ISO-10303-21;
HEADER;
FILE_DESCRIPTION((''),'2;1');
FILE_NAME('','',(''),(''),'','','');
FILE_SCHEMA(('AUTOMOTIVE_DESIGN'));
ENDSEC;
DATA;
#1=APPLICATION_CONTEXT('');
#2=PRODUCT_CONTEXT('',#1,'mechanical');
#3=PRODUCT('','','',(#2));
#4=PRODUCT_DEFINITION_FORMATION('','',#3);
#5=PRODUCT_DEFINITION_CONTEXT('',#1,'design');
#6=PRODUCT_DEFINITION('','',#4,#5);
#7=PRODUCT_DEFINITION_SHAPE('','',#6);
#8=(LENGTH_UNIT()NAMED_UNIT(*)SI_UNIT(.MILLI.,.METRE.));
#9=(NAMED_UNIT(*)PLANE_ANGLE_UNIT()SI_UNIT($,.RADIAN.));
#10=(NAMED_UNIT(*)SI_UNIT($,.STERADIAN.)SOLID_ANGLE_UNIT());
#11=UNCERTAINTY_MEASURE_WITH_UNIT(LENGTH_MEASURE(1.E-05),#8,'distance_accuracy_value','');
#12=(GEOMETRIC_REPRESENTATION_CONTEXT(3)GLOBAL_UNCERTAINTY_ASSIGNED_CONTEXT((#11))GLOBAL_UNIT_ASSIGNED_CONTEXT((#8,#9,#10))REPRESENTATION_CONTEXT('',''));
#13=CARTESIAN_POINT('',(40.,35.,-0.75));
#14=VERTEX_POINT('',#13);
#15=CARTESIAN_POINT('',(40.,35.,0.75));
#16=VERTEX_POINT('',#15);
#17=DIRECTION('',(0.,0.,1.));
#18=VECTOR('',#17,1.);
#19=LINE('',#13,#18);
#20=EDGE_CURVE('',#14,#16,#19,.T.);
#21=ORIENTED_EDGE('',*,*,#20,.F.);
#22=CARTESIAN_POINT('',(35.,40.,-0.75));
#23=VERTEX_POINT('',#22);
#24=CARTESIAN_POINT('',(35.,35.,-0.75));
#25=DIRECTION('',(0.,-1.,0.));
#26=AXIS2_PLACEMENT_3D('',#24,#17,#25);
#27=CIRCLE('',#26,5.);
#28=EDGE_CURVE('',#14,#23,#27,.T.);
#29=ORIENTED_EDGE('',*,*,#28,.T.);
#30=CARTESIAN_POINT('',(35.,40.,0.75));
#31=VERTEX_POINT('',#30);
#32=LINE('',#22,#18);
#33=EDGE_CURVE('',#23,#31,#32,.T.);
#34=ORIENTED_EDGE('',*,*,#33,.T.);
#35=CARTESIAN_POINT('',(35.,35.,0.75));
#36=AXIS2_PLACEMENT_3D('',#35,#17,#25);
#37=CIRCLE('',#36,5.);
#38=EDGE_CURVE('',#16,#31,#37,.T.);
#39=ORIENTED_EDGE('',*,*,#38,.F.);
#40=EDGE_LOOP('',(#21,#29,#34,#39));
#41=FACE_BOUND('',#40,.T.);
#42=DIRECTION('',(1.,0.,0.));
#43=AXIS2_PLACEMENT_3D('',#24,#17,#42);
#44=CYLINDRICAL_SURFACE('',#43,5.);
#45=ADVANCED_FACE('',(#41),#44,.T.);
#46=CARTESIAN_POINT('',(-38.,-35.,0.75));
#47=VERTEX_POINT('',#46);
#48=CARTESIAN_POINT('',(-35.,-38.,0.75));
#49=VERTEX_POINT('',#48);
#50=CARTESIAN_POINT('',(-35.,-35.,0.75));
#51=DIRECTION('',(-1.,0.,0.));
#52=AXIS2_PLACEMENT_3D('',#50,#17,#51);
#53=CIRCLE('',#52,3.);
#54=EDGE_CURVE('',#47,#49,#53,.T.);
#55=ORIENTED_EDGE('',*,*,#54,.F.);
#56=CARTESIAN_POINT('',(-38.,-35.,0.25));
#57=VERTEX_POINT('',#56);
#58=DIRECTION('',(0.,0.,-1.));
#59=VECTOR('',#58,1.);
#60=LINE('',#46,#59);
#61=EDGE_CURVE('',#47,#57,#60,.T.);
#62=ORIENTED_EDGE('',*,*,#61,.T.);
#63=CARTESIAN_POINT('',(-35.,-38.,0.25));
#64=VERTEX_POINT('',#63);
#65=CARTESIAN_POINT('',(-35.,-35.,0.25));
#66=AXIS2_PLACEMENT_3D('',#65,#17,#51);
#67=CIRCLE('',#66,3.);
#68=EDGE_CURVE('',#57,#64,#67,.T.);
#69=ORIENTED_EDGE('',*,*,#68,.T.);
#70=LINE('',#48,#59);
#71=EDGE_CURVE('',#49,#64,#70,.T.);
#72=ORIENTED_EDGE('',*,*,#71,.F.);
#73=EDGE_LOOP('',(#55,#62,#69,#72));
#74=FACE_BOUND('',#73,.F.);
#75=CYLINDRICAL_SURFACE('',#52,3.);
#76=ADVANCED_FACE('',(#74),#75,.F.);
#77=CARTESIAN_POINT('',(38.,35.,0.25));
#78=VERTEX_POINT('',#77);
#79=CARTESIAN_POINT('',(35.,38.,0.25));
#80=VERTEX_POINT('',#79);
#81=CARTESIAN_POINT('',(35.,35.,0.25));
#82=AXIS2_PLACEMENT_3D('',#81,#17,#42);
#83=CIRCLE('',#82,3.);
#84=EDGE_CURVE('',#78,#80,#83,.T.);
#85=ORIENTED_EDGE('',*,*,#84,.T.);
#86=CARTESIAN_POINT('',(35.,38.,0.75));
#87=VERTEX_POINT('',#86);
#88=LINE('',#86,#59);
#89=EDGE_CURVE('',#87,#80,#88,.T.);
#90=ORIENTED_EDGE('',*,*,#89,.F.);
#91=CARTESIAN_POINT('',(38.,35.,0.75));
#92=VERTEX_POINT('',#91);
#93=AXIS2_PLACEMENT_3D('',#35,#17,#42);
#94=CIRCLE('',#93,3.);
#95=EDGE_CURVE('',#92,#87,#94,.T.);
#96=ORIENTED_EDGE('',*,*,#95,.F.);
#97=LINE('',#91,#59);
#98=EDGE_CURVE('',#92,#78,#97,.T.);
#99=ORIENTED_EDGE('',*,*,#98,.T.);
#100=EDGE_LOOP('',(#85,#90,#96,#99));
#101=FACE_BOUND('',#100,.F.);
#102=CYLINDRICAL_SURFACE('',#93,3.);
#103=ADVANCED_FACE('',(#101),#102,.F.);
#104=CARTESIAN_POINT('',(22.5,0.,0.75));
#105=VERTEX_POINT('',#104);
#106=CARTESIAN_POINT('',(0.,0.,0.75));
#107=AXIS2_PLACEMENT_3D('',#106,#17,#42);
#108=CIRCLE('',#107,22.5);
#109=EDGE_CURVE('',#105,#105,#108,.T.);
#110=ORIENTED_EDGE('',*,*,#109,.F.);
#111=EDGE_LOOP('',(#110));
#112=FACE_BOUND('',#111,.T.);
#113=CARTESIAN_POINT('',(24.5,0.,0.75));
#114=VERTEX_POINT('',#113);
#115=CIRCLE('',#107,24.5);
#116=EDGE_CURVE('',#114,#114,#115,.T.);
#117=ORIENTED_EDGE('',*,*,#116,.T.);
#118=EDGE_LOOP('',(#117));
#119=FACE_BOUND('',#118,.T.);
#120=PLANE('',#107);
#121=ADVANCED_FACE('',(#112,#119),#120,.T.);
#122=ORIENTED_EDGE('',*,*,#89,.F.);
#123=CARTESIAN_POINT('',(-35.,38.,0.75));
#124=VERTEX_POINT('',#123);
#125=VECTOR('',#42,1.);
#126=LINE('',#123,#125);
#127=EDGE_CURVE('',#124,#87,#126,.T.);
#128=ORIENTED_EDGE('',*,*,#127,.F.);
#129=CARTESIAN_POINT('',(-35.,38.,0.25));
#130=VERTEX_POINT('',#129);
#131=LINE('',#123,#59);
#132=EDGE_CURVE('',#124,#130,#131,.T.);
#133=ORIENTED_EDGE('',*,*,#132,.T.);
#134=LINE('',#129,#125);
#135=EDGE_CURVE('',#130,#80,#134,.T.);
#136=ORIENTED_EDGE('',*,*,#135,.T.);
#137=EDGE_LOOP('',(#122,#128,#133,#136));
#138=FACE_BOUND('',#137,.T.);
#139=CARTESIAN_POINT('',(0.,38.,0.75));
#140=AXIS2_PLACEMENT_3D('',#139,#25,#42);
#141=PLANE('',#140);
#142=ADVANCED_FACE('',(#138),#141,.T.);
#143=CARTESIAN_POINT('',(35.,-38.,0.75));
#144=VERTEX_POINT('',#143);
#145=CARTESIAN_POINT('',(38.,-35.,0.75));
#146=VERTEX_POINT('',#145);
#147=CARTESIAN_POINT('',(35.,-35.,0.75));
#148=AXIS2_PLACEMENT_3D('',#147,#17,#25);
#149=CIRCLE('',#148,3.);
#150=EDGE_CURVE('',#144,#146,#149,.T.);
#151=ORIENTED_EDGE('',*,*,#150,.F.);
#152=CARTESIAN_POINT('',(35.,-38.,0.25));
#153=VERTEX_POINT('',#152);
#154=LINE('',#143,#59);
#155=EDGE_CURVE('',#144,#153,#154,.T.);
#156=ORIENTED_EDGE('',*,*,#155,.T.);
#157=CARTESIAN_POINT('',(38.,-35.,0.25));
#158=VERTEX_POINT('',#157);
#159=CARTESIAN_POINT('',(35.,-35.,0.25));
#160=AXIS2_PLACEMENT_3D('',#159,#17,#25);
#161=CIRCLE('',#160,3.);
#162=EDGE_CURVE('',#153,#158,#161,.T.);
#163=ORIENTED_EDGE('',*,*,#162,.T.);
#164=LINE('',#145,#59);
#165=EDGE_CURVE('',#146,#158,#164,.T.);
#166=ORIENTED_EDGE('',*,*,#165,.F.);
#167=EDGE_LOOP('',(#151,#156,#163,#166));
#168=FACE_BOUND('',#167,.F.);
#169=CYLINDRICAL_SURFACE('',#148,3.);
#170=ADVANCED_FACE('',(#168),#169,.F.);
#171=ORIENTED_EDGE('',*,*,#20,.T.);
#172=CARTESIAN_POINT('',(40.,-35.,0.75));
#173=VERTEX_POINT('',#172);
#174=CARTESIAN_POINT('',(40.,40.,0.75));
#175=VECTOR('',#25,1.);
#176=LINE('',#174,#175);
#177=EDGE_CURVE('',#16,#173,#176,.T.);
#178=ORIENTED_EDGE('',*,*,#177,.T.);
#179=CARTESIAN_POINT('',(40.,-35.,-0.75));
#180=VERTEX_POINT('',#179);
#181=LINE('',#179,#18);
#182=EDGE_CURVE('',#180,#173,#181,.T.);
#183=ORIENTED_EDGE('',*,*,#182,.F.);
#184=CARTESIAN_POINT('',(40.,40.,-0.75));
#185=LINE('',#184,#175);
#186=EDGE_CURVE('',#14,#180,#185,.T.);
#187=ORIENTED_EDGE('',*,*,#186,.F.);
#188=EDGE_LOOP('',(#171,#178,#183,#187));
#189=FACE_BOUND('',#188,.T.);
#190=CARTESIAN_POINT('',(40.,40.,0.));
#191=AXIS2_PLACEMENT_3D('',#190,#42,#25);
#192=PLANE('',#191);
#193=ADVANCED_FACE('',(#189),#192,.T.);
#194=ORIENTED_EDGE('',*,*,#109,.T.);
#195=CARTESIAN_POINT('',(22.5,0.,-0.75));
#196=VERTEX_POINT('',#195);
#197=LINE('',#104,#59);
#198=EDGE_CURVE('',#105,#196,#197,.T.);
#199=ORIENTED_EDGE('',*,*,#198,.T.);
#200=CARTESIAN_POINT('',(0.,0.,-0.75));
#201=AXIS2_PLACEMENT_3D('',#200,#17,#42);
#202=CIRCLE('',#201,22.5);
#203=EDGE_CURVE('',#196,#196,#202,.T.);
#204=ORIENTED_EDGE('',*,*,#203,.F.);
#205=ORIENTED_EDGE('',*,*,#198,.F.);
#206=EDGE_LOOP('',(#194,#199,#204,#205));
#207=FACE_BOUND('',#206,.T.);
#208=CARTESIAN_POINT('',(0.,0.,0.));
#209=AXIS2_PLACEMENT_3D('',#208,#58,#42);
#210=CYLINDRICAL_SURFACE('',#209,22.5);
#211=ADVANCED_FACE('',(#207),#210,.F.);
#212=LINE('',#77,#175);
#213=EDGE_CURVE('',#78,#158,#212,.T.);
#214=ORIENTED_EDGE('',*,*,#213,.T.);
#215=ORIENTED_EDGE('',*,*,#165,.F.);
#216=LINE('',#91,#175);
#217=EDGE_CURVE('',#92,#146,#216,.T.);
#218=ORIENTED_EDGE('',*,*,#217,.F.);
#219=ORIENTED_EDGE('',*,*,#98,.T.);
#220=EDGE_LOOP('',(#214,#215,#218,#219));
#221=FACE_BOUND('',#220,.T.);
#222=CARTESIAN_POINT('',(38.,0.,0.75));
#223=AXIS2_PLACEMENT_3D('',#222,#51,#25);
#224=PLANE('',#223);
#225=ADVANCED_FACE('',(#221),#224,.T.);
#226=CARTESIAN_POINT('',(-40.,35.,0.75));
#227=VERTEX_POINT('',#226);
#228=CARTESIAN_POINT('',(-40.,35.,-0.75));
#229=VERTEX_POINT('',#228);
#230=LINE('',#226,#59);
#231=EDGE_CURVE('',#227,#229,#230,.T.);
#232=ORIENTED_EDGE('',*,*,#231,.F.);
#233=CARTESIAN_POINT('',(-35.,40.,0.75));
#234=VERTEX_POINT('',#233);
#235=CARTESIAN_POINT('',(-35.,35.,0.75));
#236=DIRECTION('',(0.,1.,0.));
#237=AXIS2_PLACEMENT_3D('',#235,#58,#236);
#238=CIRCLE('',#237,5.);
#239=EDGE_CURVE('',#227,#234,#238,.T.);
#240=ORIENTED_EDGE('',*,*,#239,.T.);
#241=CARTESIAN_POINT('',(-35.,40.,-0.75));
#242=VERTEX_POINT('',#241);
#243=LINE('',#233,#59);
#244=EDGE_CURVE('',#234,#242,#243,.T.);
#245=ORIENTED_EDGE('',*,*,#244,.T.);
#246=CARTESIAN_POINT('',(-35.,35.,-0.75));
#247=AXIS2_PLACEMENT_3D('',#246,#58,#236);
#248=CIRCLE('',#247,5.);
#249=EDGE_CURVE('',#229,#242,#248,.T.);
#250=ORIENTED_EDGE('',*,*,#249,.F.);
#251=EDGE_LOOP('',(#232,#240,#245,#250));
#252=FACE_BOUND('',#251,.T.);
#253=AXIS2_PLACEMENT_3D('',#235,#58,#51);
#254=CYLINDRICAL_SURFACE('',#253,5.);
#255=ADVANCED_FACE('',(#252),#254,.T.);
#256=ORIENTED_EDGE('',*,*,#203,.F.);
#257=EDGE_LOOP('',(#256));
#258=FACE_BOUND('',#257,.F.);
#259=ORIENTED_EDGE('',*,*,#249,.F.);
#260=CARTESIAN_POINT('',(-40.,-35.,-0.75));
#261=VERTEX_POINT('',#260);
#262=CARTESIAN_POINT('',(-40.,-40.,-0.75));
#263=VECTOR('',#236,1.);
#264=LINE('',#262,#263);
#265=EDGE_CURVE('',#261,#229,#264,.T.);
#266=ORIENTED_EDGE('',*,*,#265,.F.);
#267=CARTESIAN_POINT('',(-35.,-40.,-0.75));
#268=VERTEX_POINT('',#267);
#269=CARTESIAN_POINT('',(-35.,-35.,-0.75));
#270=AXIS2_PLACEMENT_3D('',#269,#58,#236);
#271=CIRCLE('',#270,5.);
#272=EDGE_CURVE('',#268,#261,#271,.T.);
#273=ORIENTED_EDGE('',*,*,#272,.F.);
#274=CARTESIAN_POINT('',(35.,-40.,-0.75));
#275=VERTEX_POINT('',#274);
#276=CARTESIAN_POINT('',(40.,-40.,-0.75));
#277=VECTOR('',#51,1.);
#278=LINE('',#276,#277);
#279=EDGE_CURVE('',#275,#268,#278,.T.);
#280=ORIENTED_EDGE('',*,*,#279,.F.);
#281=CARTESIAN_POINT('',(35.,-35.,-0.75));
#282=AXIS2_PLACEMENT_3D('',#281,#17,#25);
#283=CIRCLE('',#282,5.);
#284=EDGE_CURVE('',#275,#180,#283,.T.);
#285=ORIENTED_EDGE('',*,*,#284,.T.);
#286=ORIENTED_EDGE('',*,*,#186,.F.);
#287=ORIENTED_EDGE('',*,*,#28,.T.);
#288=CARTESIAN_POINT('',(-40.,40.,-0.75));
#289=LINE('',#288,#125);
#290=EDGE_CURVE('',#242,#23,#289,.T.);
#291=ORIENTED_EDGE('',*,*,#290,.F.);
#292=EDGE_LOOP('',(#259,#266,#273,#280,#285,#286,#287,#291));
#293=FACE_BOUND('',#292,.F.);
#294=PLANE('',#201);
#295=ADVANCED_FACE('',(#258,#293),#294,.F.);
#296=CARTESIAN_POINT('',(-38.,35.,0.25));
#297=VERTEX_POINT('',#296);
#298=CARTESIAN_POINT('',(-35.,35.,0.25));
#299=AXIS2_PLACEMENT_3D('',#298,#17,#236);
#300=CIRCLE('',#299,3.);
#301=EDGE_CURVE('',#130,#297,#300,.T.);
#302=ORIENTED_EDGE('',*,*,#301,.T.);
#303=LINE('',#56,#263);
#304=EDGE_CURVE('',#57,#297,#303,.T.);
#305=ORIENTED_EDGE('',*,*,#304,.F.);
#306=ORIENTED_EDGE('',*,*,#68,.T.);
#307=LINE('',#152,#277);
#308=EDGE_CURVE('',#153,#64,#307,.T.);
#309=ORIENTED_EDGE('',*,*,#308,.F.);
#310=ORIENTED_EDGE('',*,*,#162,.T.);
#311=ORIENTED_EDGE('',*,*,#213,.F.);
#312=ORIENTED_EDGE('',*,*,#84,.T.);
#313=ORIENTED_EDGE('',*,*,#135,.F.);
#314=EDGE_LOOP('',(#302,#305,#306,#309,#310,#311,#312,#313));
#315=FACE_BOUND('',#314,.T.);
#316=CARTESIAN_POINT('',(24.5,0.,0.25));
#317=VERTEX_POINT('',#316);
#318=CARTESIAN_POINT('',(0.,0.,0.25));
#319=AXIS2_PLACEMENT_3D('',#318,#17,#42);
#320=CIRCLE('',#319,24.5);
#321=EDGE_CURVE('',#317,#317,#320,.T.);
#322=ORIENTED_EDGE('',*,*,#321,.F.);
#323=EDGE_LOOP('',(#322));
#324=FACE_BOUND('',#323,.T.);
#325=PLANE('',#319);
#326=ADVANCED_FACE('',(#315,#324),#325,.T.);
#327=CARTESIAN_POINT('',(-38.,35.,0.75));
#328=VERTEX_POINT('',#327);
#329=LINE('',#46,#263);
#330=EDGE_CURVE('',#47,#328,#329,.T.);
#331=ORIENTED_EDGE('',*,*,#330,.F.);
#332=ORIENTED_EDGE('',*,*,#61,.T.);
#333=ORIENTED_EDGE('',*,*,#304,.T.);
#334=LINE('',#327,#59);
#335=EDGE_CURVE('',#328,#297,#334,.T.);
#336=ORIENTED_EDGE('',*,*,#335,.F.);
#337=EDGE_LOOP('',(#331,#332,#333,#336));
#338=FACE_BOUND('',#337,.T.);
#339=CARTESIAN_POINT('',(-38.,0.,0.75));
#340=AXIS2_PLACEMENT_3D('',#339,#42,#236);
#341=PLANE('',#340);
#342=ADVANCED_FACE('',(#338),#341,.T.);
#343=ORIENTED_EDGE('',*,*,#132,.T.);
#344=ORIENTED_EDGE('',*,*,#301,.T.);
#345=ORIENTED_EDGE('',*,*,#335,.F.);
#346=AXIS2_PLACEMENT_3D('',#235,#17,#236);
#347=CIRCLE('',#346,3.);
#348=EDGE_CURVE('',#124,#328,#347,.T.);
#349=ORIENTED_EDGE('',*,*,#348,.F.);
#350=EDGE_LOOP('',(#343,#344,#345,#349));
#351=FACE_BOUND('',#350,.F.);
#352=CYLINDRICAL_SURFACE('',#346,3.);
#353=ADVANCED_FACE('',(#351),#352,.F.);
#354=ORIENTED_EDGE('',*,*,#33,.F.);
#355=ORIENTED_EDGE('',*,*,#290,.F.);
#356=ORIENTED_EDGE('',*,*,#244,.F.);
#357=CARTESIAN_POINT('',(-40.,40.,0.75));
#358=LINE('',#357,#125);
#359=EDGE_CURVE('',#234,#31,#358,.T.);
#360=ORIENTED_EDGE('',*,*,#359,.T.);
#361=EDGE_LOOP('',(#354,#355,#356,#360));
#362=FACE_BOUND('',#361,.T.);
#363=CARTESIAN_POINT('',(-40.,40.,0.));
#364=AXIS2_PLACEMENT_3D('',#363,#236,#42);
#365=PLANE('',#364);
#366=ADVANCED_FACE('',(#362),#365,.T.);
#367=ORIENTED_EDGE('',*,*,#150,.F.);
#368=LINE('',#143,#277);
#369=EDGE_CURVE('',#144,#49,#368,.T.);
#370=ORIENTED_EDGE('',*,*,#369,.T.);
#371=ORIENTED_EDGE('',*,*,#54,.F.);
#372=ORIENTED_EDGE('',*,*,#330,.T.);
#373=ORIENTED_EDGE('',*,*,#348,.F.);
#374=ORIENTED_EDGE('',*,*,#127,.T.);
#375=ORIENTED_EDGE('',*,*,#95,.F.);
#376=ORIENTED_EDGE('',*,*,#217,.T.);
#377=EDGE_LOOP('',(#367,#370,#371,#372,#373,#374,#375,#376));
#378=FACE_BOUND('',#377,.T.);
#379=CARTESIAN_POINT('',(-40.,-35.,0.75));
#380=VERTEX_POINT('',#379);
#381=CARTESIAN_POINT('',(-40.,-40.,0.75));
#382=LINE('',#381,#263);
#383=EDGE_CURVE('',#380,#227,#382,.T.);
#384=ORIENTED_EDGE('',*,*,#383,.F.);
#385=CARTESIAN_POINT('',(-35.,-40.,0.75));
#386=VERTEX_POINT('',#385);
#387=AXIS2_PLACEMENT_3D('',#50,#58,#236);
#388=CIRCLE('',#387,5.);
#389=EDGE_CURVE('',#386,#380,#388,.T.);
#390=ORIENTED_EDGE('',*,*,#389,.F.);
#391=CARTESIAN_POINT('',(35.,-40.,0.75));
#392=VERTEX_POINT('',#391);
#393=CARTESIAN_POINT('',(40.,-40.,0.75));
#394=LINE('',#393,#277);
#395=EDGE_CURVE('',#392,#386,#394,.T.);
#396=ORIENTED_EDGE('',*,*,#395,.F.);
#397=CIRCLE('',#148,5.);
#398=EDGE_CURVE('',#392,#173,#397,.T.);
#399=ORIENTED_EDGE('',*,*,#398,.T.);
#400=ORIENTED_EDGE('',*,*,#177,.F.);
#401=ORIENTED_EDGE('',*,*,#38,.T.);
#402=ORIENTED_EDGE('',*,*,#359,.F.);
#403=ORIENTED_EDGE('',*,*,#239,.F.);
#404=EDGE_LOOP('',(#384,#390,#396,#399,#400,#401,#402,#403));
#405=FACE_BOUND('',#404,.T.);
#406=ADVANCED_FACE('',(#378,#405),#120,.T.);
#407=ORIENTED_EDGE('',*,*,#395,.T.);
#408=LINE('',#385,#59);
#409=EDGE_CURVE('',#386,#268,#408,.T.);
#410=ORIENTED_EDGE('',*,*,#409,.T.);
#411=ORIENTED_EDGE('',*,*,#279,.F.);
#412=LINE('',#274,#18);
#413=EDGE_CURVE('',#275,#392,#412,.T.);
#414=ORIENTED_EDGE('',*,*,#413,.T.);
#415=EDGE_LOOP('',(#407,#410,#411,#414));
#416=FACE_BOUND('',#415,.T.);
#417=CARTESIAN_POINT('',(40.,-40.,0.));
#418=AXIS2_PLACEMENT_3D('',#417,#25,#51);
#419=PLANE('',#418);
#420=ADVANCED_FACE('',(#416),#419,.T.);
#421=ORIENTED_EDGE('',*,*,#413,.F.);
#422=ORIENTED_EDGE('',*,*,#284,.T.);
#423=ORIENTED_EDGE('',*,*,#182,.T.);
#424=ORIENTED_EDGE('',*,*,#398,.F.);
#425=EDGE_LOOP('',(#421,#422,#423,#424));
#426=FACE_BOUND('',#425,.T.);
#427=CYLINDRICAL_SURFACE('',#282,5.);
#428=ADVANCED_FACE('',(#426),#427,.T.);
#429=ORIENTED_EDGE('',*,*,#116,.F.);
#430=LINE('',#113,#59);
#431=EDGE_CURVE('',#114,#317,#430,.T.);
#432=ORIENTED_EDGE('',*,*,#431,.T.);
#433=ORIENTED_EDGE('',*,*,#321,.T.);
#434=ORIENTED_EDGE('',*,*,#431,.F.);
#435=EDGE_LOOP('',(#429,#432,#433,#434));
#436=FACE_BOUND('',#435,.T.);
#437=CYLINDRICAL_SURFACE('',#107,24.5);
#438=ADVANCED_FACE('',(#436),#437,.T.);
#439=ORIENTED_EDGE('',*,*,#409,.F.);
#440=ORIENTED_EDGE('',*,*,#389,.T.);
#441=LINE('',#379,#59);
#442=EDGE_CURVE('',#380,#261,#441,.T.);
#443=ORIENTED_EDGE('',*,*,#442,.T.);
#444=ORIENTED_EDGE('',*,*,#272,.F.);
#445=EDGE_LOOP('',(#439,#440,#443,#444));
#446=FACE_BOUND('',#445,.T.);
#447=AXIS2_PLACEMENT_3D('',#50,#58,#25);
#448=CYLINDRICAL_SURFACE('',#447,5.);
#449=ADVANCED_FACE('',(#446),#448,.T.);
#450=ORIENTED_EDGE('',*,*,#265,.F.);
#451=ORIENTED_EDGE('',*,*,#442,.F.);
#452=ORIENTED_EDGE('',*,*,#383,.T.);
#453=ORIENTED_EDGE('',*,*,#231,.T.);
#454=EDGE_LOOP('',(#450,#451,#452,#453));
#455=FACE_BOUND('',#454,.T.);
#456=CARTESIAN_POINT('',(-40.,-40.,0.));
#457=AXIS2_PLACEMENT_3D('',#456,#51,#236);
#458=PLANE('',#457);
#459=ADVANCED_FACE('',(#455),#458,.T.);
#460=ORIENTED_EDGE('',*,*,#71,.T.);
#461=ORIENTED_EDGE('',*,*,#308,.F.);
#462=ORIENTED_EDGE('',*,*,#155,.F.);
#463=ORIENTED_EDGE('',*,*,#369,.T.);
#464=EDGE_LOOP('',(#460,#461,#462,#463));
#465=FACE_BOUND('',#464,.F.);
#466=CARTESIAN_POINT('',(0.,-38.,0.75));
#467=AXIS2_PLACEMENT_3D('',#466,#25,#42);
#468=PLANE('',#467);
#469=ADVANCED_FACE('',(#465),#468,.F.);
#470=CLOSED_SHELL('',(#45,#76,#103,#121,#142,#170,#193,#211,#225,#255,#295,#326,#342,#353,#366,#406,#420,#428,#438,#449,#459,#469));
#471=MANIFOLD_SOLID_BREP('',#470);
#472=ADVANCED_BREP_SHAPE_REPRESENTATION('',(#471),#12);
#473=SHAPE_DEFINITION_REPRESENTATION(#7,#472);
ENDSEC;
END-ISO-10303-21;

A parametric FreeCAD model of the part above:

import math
import FreeCAD as App
import Part
import Sketcher


def edges_at(feature, points):
    """Names of the edges that pass closest to the given points."""
    edges = feature.Shape.Edges
    near = lambda p: min(range(len(edges)), key=lambda i: edges[i].distToShape(Part.Vertex(*p))[0])
    return sorted({f"Edge{near(p) + 1}" for p in points})


def add_polygon(sketch, points):
    """Adds a closed chain of lines whose ends are joined by coincident constraints."""
    first, n = sketch.GeometryCount, len(points)
    for a, b in zip(points, points[1:] + points[:1]):
        sketch.addGeometry(Part.LineSegment(App.Vector(*a, 0), App.Vector(*b, 0)), False)
    for i in range(n):
        sketch.addConstraint(Sketcher.Constraint("Coincident", first + i, 2, first + (i + 1) % n, 1))

doc = App.newDocument("Part")
body = doc.addObject("PartDesign::Body", "Body")

# Sketch on XY plane
sketch1 = body.newObject("Sketcher::SketchObject", "Sketch")
sketch1.AttachmentSupport = (doc.getObject("XY_Plane"), [""])
sketch1.MapMode = "FlatFace"
add_polygon(sketch1, [(-40, -40), (40, -40), (40, 40), (-40, 40)])  # lines 0-3
sketch1.addGeometry(Part.Circle(App.Vector(0, 0, 0), App.Vector(0, 0, 1), 22.5), False)  # 4
sketch1.addConstraint(Sketcher.Constraint("Horizontal", 0))
sketch1.addConstraint(Sketcher.Constraint("Vertical", 1))
sketch1.addConstraint(Sketcher.Constraint("Horizontal", 2))
sketch1.addConstraint(Sketcher.Constraint("Vertical", 3))
sketch1.addConstraint(Sketcher.Constraint("Coincident", 4, 3, -1, 1))
sketch1.addConstraint(Sketcher.Constraint("Symmetric", 0, 2, 2, 2, -1, 1))
sketch1.addConstraint(Sketcher.Constraint("Equal", 2, 1))
sketch1.addConstraint(Sketcher.Constraint("Diameter", 4, 45.0))
sketch1.addConstraint(Sketcher.Constraint("DistanceX", 0, 1, 0, 2, 80.0))
pad1 = body.newObject("PartDesign::Pad", "Pad")
pad1.Profile = sketch1
pad1.Length = 1.5
pad1.Midplane = True
doc.recompute()

fillet = body.newObject("PartDesign::Fillet", "Fillet")
fillet.Base = (pad1, edges_at(pad1, [
    (40, 40, 0),
    (40, -40, 0),
    (-40, -40, 0),
    (-40, 40, 0),
]))
fillet.Radius = 5

# Sketch on XY plane
sketch2 = body.newObject("Sketcher::SketchObject", "Sketch001")
sketch2.AttachmentSupport = (doc.getObject("XY_Plane"), [""])
sketch2.MapMode = "FlatFace"
sketch2.AttachmentOffset = App.Placement(App.Vector(0, 0, 0.75), App.Rotation())
sketch2.addGeometry(Part.LineSegment(App.Vector(-35, -38, 0), App.Vector(35, -38, 0)), False)
sketch2.addGeometry(Part.ArcOfCircle(Part.Circle(App.Vector(35, -35, 0), App.Vector(0, 0, 1), 3), math.radians(-90), math.radians(0)), False)
sketch2.addGeometry(Part.LineSegment(App.Vector(38, -35, 0), App.Vector(38, 35, 0)), False)
sketch2.addGeometry(Part.ArcOfCircle(Part.Circle(App.Vector(35, 35, 0), App.Vector(0, 0, 1), 3), math.radians(0), math.radians(90)), False)
sketch2.addGeometry(Part.LineSegment(App.Vector(35, 38, 0), App.Vector(-35, 38, 0)), False)
sketch2.addGeometry(Part.ArcOfCircle(Part.Circle(App.Vector(-35, 35, 0), App.Vector(0, 0, 1), 3), math.radians(90), math.radians(180)), False)
sketch2.addGeometry(Part.LineSegment(App.Vector(-38, 35, 0), App.Vector(-38, -35, 0)), False)
sketch2.addGeometry(Part.ArcOfCircle(Part.Circle(App.Vector(-35, -35, 0), App.Vector(0, 0, 1), 3), math.radians(180), math.radians(270)), False)
sketch2.addGeometry(Part.Circle(App.Vector(0, 0, 0), App.Vector(0, 0, 1), 24.5), False)
sketch2.addConstraint(Sketcher.Constraint("Tangent", 0, 2, 1, 1))
sketch2.addConstraint(Sketcher.Constraint("Tangent", 1, 2, 2, 1))
sketch2.addConstraint(Sketcher.Constraint("Tangent", 2, 2, 3, 1))
sketch2.addConstraint(Sketcher.Constraint("Tangent", 3, 2, 4, 1))
sketch2.addConstraint(Sketcher.Constraint("Tangent", 4, 2, 5, 1))
sketch2.addConstraint(Sketcher.Constraint("Tangent", 5, 2, 6, 1))
sketch2.addConstraint(Sketcher.Constraint("Tangent", 6, 2, 7, 1))
sketch2.addConstraint(Sketcher.Constraint("Tangent", 7, 2, 0, 1))
sketch2.addConstraint(Sketcher.Constraint("Horizontal", 0))
sketch2.addConstraint(Sketcher.Constraint("Vertical", 2))
sketch2.addConstraint(Sketcher.Constraint("Horizontal", 4))
sketch2.addConstraint(Sketcher.Constraint("Vertical", 6))
sketch2.addConstraint(Sketcher.Constraint("Coincident", 8, 3, -1, 1))
sketch2.addConstraint(Sketcher.Constraint("Equal", 1, 3))
sketch2.addConstraint(Sketcher.Constraint("Equal", 3, 5))
sketch2.addConstraint(Sketcher.Constraint("Equal", 5, 7))
sketch2.addConstraint(Sketcher.Constraint("Symmetric", 1, 3, 5, 3, -1, 1))
sketch2.addConstraint(Sketcher.Constraint("Equal", 4, 2))
sketch2.addConstraint(Sketcher.Constraint("Diameter", 8, 49.0))
sketch2.addConstraint(Sketcher.Constraint("DistanceX", -1, 1, 1, 3, 35.0))
sketch2.addConstraint(Sketcher.Constraint("Radius", 1, 3.0))
pocket1 = body.newObject("PartDesign::Pocket", "Pocket")
pocket1.Profile = sketch2
pocket1.Length = 0.5

doc.recompute()
